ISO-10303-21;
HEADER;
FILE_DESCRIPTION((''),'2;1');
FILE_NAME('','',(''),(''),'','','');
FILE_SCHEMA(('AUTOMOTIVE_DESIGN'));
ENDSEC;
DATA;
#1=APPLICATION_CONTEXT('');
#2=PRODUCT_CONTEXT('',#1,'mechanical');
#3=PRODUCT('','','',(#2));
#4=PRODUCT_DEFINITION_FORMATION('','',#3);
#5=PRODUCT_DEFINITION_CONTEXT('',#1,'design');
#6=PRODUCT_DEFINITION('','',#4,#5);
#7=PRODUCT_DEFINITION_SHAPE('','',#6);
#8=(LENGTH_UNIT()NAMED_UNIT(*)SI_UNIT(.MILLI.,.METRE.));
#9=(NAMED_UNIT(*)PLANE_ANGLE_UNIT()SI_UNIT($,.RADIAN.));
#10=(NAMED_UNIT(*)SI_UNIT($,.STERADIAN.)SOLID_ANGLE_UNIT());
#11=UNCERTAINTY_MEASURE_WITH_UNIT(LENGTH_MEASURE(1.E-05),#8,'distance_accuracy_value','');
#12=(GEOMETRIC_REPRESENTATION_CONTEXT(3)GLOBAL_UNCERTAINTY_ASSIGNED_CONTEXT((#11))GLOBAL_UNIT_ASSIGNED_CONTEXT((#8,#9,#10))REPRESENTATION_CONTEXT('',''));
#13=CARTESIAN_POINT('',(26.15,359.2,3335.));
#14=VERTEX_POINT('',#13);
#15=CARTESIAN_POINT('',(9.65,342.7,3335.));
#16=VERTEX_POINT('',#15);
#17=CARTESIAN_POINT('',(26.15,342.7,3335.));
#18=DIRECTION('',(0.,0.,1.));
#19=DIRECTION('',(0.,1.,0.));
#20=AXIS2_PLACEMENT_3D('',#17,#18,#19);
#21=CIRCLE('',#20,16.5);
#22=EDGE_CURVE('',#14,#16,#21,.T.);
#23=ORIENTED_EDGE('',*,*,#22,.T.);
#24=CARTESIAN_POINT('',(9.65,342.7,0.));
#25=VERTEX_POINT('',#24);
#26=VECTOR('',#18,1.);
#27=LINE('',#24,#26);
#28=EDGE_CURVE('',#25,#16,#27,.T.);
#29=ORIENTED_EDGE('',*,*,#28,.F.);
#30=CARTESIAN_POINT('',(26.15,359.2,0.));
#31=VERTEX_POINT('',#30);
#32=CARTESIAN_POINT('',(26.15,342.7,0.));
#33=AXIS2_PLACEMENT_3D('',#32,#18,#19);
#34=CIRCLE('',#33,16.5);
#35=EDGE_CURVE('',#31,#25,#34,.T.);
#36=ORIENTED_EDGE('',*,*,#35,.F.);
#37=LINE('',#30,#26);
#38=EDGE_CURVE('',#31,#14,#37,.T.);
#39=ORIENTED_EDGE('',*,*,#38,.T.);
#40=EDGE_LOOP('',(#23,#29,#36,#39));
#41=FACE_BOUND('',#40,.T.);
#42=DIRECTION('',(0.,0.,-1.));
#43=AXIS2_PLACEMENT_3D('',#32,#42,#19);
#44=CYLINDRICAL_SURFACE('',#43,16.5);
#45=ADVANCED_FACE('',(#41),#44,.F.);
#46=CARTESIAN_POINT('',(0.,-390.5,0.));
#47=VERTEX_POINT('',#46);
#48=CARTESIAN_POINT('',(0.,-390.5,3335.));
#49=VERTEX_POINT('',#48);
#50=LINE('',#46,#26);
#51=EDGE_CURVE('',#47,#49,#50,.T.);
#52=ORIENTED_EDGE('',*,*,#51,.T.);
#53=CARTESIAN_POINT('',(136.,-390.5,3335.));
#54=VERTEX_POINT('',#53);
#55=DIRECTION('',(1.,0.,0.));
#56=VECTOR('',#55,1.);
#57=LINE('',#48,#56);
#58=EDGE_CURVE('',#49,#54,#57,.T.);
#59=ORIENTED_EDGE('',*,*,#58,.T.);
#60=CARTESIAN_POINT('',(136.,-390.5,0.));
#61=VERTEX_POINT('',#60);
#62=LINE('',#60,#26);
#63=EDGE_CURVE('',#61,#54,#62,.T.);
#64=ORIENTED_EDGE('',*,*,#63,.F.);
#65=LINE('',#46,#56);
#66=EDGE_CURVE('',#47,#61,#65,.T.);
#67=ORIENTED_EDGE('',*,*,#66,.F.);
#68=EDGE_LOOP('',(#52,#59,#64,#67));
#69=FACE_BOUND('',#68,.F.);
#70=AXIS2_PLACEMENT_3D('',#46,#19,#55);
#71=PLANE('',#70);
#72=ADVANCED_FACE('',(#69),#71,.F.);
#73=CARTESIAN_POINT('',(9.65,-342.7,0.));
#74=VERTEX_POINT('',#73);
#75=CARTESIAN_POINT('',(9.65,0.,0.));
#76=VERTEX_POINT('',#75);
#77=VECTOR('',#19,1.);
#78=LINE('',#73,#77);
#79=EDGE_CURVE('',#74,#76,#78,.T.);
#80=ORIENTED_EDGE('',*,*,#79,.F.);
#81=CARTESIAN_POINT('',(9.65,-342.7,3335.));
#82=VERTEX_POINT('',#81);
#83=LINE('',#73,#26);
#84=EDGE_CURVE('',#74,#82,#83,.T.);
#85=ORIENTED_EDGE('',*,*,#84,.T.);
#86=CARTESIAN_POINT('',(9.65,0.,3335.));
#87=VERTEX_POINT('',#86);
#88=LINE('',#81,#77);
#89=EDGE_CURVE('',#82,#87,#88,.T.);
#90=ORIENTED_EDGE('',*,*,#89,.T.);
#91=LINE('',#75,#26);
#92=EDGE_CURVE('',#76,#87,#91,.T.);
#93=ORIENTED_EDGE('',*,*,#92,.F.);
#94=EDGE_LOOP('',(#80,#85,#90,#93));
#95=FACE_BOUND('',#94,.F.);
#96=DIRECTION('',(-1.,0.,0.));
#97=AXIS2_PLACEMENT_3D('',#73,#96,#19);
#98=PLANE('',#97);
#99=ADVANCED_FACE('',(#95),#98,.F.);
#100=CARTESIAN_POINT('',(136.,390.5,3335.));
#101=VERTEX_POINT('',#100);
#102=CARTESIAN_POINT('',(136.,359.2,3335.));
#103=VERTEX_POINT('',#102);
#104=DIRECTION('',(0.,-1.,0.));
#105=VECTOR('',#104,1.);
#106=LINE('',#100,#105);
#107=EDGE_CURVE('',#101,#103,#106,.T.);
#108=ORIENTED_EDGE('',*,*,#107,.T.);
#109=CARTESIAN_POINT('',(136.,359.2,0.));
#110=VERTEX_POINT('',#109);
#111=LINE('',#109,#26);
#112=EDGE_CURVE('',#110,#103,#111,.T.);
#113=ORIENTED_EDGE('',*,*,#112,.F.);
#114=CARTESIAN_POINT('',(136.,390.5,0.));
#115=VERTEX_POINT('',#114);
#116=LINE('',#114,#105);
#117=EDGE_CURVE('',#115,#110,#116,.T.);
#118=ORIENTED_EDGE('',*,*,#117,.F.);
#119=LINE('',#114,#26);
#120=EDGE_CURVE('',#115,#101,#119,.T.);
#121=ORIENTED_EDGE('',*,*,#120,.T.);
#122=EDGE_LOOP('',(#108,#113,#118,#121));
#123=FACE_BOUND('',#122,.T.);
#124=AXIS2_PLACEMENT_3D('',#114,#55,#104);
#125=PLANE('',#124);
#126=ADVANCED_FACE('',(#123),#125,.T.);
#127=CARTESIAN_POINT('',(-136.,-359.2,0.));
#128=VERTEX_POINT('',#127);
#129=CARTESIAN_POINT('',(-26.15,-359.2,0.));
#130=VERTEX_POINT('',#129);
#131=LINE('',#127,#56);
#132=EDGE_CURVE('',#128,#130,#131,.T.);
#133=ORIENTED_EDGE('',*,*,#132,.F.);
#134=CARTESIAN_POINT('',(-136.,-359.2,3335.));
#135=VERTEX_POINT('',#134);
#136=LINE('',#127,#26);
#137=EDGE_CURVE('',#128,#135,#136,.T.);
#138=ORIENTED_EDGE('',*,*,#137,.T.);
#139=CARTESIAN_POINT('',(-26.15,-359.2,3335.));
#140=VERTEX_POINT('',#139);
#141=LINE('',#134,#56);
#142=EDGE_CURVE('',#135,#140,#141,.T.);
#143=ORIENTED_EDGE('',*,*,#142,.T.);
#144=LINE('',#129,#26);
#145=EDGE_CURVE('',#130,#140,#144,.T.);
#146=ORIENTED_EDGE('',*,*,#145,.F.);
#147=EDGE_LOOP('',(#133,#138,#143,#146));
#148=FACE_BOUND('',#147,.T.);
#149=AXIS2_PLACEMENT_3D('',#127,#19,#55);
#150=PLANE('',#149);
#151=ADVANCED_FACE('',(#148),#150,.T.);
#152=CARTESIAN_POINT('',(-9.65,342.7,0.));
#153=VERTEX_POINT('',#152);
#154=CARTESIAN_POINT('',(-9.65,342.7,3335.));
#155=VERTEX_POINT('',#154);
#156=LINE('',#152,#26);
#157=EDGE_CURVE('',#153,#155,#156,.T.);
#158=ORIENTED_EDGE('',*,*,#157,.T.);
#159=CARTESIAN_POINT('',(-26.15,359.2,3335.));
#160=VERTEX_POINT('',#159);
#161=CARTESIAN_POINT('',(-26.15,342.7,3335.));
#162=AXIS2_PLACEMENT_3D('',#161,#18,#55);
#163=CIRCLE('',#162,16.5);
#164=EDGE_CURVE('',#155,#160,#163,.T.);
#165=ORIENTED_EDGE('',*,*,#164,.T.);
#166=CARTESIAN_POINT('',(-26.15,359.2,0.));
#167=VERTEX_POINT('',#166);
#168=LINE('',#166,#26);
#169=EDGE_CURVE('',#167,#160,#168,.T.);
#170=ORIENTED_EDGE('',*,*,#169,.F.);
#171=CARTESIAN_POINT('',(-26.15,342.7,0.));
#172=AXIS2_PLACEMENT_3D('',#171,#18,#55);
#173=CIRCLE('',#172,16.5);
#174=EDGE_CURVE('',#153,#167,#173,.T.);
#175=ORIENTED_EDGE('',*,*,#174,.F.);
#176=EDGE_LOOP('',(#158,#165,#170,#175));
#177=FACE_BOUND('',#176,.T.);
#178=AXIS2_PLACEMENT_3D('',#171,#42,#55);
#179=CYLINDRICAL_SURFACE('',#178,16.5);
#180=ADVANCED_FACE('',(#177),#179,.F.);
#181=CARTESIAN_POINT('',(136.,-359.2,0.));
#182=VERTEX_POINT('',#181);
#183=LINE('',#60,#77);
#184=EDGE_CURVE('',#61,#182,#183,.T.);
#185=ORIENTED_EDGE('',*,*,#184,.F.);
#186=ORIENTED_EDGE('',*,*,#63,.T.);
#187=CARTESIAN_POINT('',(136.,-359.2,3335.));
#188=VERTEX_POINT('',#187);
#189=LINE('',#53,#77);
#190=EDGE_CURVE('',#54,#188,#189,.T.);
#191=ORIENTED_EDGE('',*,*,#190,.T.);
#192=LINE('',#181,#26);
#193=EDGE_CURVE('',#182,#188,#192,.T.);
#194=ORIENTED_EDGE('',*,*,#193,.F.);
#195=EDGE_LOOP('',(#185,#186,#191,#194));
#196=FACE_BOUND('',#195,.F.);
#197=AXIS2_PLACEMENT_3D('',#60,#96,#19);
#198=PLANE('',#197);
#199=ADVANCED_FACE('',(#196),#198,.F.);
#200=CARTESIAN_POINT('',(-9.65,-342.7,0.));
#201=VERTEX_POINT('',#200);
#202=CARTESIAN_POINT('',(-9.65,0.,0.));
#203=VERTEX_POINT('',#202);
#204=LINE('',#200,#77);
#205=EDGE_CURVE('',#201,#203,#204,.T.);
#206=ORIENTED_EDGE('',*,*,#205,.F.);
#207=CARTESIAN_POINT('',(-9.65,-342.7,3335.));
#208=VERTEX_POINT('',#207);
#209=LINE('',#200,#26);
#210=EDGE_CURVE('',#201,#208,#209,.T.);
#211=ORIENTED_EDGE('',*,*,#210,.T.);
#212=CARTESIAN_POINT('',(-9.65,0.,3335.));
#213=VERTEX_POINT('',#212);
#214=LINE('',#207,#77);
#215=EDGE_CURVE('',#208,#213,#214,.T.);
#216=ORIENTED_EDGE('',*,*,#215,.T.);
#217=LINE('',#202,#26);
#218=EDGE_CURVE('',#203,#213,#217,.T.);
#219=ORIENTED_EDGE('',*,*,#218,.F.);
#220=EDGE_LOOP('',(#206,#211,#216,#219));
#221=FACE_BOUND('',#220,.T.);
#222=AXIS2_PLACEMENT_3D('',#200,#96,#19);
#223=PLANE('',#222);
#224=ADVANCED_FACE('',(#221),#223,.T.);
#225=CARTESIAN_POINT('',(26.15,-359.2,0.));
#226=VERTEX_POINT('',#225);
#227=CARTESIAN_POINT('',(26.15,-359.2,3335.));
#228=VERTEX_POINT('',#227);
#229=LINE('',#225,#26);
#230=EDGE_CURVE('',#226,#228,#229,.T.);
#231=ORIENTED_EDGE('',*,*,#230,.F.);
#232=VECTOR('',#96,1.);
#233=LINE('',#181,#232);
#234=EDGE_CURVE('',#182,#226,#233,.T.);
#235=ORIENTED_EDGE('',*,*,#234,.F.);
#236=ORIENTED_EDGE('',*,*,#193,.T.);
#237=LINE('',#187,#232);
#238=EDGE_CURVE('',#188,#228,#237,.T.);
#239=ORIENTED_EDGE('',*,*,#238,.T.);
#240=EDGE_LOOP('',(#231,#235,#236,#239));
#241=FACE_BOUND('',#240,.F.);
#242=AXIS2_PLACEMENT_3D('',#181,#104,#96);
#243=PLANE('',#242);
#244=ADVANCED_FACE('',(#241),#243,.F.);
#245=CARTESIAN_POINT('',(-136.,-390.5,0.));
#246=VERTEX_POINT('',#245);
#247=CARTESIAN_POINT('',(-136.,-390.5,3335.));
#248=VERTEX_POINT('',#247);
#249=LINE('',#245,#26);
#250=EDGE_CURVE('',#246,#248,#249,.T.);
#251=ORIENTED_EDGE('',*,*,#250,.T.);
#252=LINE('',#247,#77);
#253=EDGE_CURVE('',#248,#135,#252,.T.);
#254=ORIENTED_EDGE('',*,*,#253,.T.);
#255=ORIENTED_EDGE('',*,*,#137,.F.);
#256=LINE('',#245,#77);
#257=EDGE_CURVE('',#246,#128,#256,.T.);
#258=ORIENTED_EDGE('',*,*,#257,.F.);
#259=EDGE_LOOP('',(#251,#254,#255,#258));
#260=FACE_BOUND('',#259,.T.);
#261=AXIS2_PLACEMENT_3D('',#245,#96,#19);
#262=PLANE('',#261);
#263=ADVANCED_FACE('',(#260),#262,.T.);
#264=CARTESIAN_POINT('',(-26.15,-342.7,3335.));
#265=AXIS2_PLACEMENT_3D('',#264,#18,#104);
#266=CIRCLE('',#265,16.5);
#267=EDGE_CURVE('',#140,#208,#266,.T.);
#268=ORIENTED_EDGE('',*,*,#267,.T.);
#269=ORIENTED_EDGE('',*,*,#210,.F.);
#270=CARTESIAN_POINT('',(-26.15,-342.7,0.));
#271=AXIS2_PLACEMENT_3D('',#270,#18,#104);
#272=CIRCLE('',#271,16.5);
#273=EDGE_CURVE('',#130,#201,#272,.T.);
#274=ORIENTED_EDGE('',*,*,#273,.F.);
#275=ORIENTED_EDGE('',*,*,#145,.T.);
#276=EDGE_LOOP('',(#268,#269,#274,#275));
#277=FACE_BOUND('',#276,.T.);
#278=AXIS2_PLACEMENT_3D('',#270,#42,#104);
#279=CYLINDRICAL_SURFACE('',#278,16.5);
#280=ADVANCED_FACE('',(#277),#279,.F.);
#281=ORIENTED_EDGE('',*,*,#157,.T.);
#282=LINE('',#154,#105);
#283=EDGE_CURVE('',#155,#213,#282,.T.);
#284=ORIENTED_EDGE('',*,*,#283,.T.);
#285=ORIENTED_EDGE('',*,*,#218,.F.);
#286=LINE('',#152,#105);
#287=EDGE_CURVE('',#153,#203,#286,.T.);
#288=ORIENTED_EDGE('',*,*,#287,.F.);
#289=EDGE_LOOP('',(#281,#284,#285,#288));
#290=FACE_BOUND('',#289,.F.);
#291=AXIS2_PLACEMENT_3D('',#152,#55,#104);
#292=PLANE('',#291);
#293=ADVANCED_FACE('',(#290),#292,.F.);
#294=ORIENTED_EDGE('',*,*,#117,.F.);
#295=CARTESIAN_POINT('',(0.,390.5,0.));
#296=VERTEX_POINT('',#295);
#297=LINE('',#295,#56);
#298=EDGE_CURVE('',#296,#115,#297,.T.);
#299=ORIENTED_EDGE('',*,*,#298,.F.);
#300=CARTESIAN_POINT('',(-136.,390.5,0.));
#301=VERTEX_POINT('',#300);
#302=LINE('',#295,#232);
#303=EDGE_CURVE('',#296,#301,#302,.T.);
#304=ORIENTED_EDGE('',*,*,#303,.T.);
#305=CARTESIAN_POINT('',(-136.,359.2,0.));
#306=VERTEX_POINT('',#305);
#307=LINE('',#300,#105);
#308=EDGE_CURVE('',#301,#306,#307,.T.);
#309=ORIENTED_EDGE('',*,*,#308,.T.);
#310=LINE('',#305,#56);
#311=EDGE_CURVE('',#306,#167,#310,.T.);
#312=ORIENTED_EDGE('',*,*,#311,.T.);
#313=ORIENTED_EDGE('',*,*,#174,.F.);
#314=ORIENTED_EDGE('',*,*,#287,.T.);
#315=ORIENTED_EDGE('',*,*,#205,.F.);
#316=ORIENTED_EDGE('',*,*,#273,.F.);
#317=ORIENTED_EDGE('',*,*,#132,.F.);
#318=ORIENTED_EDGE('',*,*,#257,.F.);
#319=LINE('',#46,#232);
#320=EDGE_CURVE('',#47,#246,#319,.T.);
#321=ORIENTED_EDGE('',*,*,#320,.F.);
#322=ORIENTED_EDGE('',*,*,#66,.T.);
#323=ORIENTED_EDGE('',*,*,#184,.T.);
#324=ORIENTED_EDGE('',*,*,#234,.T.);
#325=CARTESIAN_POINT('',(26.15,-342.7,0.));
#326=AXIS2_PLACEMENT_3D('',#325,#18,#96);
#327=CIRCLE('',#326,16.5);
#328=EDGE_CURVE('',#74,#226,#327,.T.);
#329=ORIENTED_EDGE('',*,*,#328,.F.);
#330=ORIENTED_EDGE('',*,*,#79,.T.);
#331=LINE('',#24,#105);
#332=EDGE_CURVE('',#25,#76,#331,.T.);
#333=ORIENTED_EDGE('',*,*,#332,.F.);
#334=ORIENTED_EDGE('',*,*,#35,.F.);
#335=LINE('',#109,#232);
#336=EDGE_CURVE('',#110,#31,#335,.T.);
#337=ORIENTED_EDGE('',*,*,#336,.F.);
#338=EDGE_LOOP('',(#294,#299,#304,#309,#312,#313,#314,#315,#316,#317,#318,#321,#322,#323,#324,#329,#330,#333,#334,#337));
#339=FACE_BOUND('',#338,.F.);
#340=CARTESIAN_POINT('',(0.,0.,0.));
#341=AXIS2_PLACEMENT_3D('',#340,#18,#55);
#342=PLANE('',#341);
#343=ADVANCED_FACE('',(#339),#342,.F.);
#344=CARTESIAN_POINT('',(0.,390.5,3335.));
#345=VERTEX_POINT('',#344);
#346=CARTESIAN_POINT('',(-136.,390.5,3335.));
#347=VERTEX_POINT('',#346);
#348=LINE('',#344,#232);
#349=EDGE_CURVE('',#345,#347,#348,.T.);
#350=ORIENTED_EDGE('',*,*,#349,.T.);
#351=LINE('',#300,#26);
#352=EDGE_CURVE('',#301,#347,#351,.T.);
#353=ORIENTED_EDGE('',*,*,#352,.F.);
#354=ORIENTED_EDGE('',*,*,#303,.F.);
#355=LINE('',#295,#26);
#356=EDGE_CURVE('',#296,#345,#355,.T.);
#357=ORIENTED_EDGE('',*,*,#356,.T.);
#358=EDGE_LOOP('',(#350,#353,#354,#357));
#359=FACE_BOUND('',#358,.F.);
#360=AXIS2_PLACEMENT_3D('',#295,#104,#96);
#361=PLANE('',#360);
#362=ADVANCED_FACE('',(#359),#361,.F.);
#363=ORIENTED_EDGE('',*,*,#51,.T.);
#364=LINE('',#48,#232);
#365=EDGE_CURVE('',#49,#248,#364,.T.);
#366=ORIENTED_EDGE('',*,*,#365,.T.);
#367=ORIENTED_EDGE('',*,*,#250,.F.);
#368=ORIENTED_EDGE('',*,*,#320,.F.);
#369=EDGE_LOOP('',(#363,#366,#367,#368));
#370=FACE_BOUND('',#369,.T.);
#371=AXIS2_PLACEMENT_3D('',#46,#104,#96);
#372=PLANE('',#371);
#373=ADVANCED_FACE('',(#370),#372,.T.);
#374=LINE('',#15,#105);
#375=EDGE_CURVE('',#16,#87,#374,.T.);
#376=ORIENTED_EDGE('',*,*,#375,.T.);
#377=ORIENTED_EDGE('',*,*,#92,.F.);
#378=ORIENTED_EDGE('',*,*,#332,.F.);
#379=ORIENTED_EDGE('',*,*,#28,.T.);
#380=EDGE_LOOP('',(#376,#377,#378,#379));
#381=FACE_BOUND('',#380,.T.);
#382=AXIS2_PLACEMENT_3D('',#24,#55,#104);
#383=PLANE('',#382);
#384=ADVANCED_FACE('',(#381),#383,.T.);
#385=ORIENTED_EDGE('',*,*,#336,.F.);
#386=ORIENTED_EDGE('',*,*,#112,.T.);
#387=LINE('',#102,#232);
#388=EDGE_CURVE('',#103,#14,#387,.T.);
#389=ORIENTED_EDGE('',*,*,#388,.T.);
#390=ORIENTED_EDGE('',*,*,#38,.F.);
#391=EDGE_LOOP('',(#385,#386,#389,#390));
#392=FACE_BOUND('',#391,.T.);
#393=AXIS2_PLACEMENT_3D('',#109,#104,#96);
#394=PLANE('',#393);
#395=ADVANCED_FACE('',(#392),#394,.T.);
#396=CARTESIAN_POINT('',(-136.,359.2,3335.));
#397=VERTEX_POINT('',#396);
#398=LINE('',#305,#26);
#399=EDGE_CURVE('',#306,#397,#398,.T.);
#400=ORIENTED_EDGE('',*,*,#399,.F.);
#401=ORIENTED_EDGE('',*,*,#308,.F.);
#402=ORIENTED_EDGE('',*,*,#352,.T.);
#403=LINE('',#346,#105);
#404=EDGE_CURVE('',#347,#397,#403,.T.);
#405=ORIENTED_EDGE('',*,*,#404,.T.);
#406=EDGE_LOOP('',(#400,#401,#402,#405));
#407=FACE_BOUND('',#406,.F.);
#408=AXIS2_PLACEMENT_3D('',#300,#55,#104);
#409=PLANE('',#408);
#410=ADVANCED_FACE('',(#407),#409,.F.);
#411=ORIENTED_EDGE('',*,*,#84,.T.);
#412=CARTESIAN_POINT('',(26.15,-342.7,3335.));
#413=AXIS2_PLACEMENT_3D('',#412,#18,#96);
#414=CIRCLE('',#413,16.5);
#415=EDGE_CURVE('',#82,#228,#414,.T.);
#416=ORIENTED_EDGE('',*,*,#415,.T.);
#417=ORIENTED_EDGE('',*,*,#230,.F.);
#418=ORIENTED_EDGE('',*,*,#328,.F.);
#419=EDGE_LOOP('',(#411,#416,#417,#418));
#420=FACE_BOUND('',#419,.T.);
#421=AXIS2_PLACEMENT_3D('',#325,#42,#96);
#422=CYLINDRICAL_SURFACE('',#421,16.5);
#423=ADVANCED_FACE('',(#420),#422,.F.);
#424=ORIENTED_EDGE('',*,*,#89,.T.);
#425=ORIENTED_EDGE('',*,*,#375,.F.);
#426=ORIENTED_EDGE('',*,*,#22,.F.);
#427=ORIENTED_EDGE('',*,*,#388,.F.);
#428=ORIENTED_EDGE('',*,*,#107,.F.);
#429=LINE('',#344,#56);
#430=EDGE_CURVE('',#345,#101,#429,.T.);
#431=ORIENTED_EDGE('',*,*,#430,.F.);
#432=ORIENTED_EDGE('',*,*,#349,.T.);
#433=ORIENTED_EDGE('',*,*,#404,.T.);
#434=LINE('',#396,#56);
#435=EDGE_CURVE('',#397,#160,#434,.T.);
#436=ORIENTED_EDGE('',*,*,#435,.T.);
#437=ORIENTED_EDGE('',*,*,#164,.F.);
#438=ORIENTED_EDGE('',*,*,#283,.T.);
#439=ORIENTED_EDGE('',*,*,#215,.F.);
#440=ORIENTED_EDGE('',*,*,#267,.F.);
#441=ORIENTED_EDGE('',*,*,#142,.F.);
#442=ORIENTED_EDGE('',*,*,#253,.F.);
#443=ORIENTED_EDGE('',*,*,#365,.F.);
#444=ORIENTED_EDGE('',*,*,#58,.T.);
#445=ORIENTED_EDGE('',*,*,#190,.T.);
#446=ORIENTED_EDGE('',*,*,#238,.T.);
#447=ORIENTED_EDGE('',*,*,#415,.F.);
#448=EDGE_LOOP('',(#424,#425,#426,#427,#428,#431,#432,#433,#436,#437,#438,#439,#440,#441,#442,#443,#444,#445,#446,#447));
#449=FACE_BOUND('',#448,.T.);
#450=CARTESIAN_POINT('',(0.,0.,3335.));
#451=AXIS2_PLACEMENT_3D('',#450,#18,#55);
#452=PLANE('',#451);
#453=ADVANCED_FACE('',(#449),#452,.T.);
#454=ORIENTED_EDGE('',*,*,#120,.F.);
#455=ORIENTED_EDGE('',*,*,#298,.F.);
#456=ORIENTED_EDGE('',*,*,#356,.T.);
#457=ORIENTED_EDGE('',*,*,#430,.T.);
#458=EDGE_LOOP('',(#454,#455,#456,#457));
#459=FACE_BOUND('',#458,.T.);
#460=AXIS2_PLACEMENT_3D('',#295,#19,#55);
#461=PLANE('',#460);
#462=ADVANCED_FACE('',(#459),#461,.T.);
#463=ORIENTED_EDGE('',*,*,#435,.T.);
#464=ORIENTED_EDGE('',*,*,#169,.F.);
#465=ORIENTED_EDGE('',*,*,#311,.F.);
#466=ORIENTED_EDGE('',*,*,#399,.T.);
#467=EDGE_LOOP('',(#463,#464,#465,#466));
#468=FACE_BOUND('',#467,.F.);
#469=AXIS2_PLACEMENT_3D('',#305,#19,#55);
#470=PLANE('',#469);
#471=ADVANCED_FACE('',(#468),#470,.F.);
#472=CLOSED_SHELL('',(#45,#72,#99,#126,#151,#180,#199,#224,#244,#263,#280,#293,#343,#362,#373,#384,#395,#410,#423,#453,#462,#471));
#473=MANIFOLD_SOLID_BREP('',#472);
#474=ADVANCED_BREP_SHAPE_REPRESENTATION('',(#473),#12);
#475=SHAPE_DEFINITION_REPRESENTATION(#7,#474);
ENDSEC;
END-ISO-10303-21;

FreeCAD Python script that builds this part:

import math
import FreeCAD as App
import Part
import Sketcher

V = App.Vector

doc = App.newDocument("Part")
body = doc.addObject("PartDesign::Body", "Body")

sketch1 = body.newObject("Sketcher::SketchObject", "Sketch")
sketch1.AttachmentSupport = (doc.getObject("XY_Plane"), [""])
sketch1.MapMode = "FlatFace"
sketch1.addGeometry([
    Part.LineSegment(V(-136, -359.2, 0), V(-136, -390.5, 0)),
    Part.LineSegment(V(-136, -390.5, 0), V(136, -390.5, 0)),
    Part.LineSegment(V(136, -390.5, 0), V(136, -359.2, 0)),
    Part.LineSegment(V(136, -359.2, 0), V(26.15, -359.2, 0)),
    Part.ArcOfCircle(Part.Circle(V(26.15, -342.7, 0), V(0, 0, 1), 16.5), math.radians(180), math.radians(270)),
    Part.LineSegment(V(9.65, -342.7, 0), V(9.65, 342.7, 0)),
    Part.ArcOfCircle(Part.Circle(V(26.15, 342.7, 0), V(0, 0, 1), 16.5), math.radians(90), math.radians(180)),
    Part.LineSegment(V(26.15, 359.2, 0), V(136, 359.2, 0)),
    Part.LineSegment(V(136, 359.2, 0), V(136, 390.5, 0)),
    Part.LineSegment(V(136, 390.5, 0), V(-136, 390.5, 0)),
    Part.LineSegment(V(-136, 390.5, 0), V(-136, 359.2, 0)),
    Part.LineSegment(V(-136, 359.2, 0), V(-26.15, 359.2, 0)),
    Part.ArcOfCircle(Part.Circle(V(-26.15, 342.7, 0), V(0, 0, 1), 16.5), math.radians(0), math.radians(90)),
    Part.LineSegment(V(-9.65, 342.7, 0), V(-9.65, -342.7, 0)),
    Part.ArcOfCircle(Part.Circle(V(-26.15, -342.7, 0), V(0, 0, 1), 16.5), math.radians(-90), math.radians(0)),
    Part.LineSegment(V(-26.15, -359.2, 0), V(-136, -359.2, 0)),
], False)
sketch1.addConstraint([
    Sketcher.Constraint("Coincident", 0, 2, 1, 1),
    Sketcher.Constraint("Coincident", 1, 2, 2, 1),
    Sketcher.Constraint("Coincident", 2, 2, 3, 1),
    Sketcher.Constraint("Tangent", 3, 2, 4, 2),
    Sketcher.Constraint("Tangent", 4, 1, 5, 1),
    Sketcher.Constraint("Tangent", 5, 2, 6, 2),
    Sketcher.Constraint("Tangent", 6, 1, 7, 1),
    Sketcher.Constraint("Coincident", 7, 2, 8, 1),
    Sketcher.Constraint("Coincident", 8, 2, 9, 1),
    Sketcher.Constraint("Coincident", 9, 2, 10, 1),
    Sketcher.Constraint("Coincident", 10, 2, 11, 1),
    Sketcher.Constraint("Tangent", 11, 2, 12, 2),
    Sketcher.Constraint("Tangent", 12, 1, 13, 1),
    Sketcher.Constraint("Tangent", 13, 2, 14, 2),
    Sketcher.Constraint("Tangent", 14, 1, 15, 1),
    Sketcher.Constraint("Coincident", 15, 2, 0, 1),
    Sketcher.Constraint("Vertical", 0),
    Sketcher.Constraint("Horizontal", 1),
    Sketcher.Constraint("Vertical", 2),
    Sketcher.Constraint("Horizontal", 3),
    Sketcher.Constraint("Vertical", 5),
    Sketcher.Constraint("Horizontal", 7),
    Sketcher.Constraint("Vertical", 8),
    Sketcher.Constraint("Horizontal", 9),
    Sketcher.Constraint("Vertical", 10),
    Sketcher.Constraint("Horizontal", 11),
    Sketcher.Constraint("Vertical", 13),
    Sketcher.Constraint("Horizontal", 15),
    Sketcher.Constraint("Equal", 4, 6),
    Sketcher.Constraint("Equal", 6, 12),
    Sketcher.Constraint("Equal", 12, 14),
    Sketcher.Constraint("Symmetric", 4, 3, 12, 3, -1, 1),
    Sketcher.Constraint("Symmetric", 0, 2, 8, 2, -1, 1),
    Sketcher.Constraint("Symmetric", 7, 2, 10, 2, -2),
    Sketcher.Constraint("Symmetric", 2, 2, 15, 2, -2),
    Sketcher.Constraint("Radius", 4, 16.5),
    Sketcher.Constraint("DistanceY", 0, 2, 0, 1, 31.3),
    Sketcher.Constraint("DistanceX", 0, 2, -1, 1, 136.0),
    Sketcher.Constraint("DistanceY", 0, 2, -1, 1, 390.5),
    Sketcher.Constraint("DistanceX", -1, 1, 4, 1, 9.65),
])
pad1 = body.newObject("PartDesign::Pad", "Pad")
pad1.Profile = sketch1
pad1.Length = 3335

doc.recompute()
